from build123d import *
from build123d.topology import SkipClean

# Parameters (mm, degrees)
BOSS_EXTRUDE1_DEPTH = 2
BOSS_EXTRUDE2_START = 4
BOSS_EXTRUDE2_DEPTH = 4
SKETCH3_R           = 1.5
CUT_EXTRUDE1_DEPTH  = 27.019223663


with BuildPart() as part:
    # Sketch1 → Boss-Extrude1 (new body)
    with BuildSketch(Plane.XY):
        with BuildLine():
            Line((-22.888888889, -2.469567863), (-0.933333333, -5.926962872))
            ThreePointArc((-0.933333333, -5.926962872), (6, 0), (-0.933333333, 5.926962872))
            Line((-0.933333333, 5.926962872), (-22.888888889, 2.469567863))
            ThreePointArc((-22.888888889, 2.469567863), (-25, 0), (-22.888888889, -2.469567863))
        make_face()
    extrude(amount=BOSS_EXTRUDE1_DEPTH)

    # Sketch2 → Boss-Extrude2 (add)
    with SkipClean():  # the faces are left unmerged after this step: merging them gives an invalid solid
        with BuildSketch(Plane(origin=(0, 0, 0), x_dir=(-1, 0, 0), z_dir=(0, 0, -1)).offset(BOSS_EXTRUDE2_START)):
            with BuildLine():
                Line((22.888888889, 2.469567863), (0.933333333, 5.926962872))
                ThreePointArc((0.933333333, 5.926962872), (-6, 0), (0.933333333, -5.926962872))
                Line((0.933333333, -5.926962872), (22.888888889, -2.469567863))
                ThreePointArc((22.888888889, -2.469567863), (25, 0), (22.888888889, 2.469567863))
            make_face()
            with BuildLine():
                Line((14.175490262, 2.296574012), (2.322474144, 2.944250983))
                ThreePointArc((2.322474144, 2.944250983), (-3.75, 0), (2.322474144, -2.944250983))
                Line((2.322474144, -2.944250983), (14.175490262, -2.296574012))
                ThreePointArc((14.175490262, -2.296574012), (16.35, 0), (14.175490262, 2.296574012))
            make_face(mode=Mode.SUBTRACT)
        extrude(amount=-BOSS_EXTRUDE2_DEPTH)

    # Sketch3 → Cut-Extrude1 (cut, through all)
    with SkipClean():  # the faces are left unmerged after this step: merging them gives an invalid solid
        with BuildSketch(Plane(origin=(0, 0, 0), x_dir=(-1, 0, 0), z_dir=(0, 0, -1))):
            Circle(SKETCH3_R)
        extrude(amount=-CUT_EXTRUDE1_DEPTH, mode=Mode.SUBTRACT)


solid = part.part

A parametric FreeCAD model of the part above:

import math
import FreeCAD as App
import Part
import Sketcher

doc = App.newDocument("Part")
body = doc.addObject("PartDesign::Body", "Body")

sketch1 = body.newObject("Sketcher::SketchObject", "Sketch")
sketch1.AttachmentSupport = (doc.getObject("XY_Plane"), [""])
sketch1.MapMode = "FlatFace"
sketch1.addGeometry([
    Part.LineSegment(App.Vector(-22.9, -2.5, 0), App.Vector(-0.9, -5.9, 0)),
    Part.ArcOfCircle(Part.Circle(App.Vector(0, 0, 0), App.Vector(0, 0, 1), 6), math.radians(-99), math.radians(99)),
    Part.LineSegment(App.Vector(-0.9, 5.9, 0), App.Vector(-22.9, 2.5, 0)),
    Part.ArcOfCircle(Part.Circle(App.Vector(-22.5, 0, 0), App.Vector(0, 0, 1), 2.5), math.radians(99), math.radians(261)),
], False)
sketch1.addConstraint([
    Sketcher.Constraint("Tangent", 0, 2, 1, 1),
    Sketcher.Constraint("Tangent", 1, 2, 2, 1),
    Sketcher.Constraint("Tangent", 2, 2, 3, 1),
    Sketcher.Constraint("Tangent", 3, 2, 0, 1),
    Sketcher.Constraint("Coincident", 1, 3, -1, 1),
    Sketcher.Constraint("PointOnObject", 3, 3, -1),
    Sketcher.Constraint("Radius", 1, 6.0),
    Sketcher.Constraint("Radius", 3, 2.5),
    Sketcher.Constraint("DistanceX", 3, 3, -1, 1, 22.5),
])
pad1 = body.newObject("PartDesign::Pad", "Pad")
pad1.Profile = sketch1
pad1.Length = 2

sketch2 = body.newObject("Sketcher::SketchObject", "Sketch001")
sketch2.AttachmentSupport = (doc.getObject("XY_Plane"), [""])
sketch2.MapMode = "FlatFace"
sketch2.AttachmentOffset = App.Placement(App.Vector(0, 0, -4), App.Rotation())
sketch2.addGeometry([
    Part.LineSegment(App.Vector(-22.9, 2.5, 0), App.Vector(-0.9, 5.9, 0)),
    Part.ArcOfCircle(Part.Circle(App.Vector(0, 0, 0), App.Vector(0, 0, 1), 6), math.radians(-99), math.radians(99)),
    Part.LineSegment(App.Vector(-0.9, -5.9, 0), App.Vector(-22.9, -2.5, 0)),
    Part.ArcOfCircle(Part.Circle(App.Vector(-22.5, 0, 0), App.Vector(0, 0, 1), 2.5), math.radians(99), math.radians(261)),
    Part.LineSegment(App.Vector(-2.3, 2.9, 0), App.Vector(-14.2, 2.3, 0)),
    Part.ArcOfCircle(Part.Circle(App.Vector(-14.1, 0, 0), App.Vector(0, 0, 1), 2.3), math.radians(93), math.radians(267)),
    Part.LineSegment(App.Vector(-14.2, -2.3, 0), App.Vector(-2.3, -2.9, 0)),
    Part.ArcOfCircle(Part.Circle(App.Vector(0, 0, 0), App.Vector(0, 0, 1), 3.8), math.radians(-128), math.radians(128)),
], False)
sketch2.addConstraint([
    Sketcher.Constraint("Tangent", 0, 2, 1, 2),
    Sketcher.Constraint("Tangent", 1, 1, 2, 1),
    Sketcher.Constraint("Tangent", 2, 2, 3, 2),
    Sketcher.Constraint("Tangent", 3, 1, 0, 1),
    Sketcher.Constraint("Tangent", 4, 2, 5, 1),
    Sketcher.Constraint("Tangent", 5, 2, 6, 1),
    Sketcher.Constraint("Coincident", 6, 2, 7, 1),
    Sketcher.Constraint("Coincident", 7, 2, 4, 1),
    Sketcher.Constraint("Coincident", 1, 3, -1, 1),
    Sketcher.Constraint("Coincident", 7, 3, -1, 1),
    Sketcher.Constraint("Symmetric", 4, 2, 5, 2, -1),
    Sketcher.Constraint("PointOnObject", 3, 3, -1),
    Sketcher.Constraint("Radius", 1, 6.0),
    Sketcher.Constraint("Radius", 3, 2.5),
    Sketcher.Constraint("Radius", 5, 2.3),
    Sketcher.Constraint("Radius", 7, 3.75),
    Sketcher.Constraint("DistanceX", 3, 3, -1, 1, 22.5),
    Sketcher.Constraint("DistanceX", 5, 3, -1, 1, 14.05),
    Sketcher.Constraint("Distance", 4, 11.870698),
])
pad2 = body.newObject("PartDesign::Pad", "Pad001")
pad2.Profile = sketch2
pad2.Length = 4

sketch3 = body.newObject("Sketcher::SketchObject", "Sketch002")
sketch3.AttachmentSupport = (doc.getObject("XY_Plane"), [""])
sketch3.MapMode = "FlatFace"
sketch3.addGeometry(Part.Circle(App.Vector(0, 0, 0), App.Vector(0, 0, 1), 1.5), False)
sketch3.addConstraint([
    Sketcher.Constraint("Coincident", 0, 3, -1, 1),
    Sketcher.Constraint("Diameter", 0, 3.0),
])
pocket1 = body.newObject("PartDesign::Pocket", "Pocket")
pocket1.Profile = sketch3
pocket1.Type = "ThroughAll"
pocket1.Reversed = True

doc.recompute()
